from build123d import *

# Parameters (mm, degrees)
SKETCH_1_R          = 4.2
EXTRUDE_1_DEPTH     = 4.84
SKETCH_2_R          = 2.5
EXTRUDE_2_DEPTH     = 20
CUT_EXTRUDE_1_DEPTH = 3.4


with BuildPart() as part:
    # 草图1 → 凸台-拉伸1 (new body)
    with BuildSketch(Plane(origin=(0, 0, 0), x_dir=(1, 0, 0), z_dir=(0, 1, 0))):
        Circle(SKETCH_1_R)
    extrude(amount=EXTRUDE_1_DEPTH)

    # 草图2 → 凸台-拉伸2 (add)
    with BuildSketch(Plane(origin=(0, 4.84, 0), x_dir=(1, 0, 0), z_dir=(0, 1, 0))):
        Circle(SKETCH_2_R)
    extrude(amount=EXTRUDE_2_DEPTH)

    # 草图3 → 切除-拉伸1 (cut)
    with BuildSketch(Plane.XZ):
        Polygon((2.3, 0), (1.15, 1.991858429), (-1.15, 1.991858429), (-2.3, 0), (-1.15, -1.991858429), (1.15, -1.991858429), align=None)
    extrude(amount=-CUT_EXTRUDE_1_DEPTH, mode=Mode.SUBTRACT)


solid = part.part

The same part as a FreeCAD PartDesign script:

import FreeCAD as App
import Part
import Sketcher
from FreeCAD import Vector
Q = App.Units.Quantity

doc = App.newDocument("Part")
params = doc.addObject("Spreadsheet::Sheet", "Params")
for row, (alias, value) in enumerate([
    ("sketch1_diameter", "8.4 mm"),
    ("pad1_length", "4.84 mm"),
    ("sketch2_diameter", "5 mm"),
    ("pad2_length", "20 mm"),
    ("sketch3_width", "2.3 mm"),
    ("sketch3_length", "2.3 mm"),
    ("pocket1_length", "3.4 mm"),
], start=1):
    params.set(f"A{row}", alias)
    params.set(f"B{row}", "=" + value)
    params.setAlias(f"B{row}", alias)

body = doc.addObject("PartDesign::Body", "Body")

# Sketch on XZ plane
sketch1 = body.newObject("Sketcher::SketchObject", "Sketch")
sketch1.AttachmentSupport = (doc.getObject("XZ_Plane"), [""])
sketch1.MapMode = "FlatFace"
sketch1.addGeometry(Part.Circle(Vector(0, 0, 0), Vector(0, 0, 1), 4.2), False)
sketch1.addConstraint(Sketcher.Constraint("Coincident", 0, 3, -1, 1))
sketch1.addConstraint(Sketcher.Constraint("Diameter", 0, 8.4))
sketch1.setExpression("Constraints[1]", "Params.sketch1_diameter")
pad1 = body.newObject("PartDesign::Pad", "Pad")
pad1.Profile = sketch1
pad1.setExpression("Length", "Params.pad1_length")
pad1.Reversed = True

# Sketch on XZ plane
sketch2 = body.newObject("Sketcher::SketchObject", "Sketch001")
sketch2.AttachmentSupport = (doc.getObject("XZ_Plane"), [""])
sketch2.MapMode = "FlatFace"
sketch2.AttachmentOffset = App.Placement(Vector(0, 0, -4.84), App.Rotation())
sketch2.addGeometry(Part.Circle(Vector(0, 0, 0), Vector(0, 0, 1), 2.5), False)
sketch2.addConstraint(Sketcher.Constraint("Coincident", 0, 3, -1, 1))
sketch2.addConstraint(Sketcher.Constraint("Diameter", 0, 5.0))
sketch2.setExpression("Constraints[1]", "Params.sketch2_diameter")
pad2 = body.newObject("PartDesign::Pad", "Pad001")
pad2.Profile = sketch2
pad2.setExpression("Length", "Params.pad2_length")
pad2.Reversed = True

# Sketch on XZ plane
sketch3 = body.newObject("Sketcher::SketchObject", "Sketch002")
sketch3.AttachmentSupport = (doc.getObject("XZ_Plane"), [""])
sketch3.MapMode = "FlatFace"
sketch3.addGeometry(Part.LineSegment(Vector(2.3, 0, 0), Vector(1.1, 2, 0)), False)
sketch3.addGeometry(Part.LineSegment(Vector(1.1, 2, 0), Vector(-1.1, 2, 0)), False)
sketch3.addGeometry(Part.LineSegment(Vector(-1.1, 2, 0), Vector(-2.3, 0, 0)), False)
sketch3.addGeometry(Part.LineSegment(Vector(-2.3, 0, 0), Vector(-1.1, -2, 0)), False)
sketch3.addGeometry(Part.LineSegment(Vector(-1.1, -2, 0), Vector(1.1, -2, 0)), False)
sketch3.addGeometry(Part.LineSegment(Vector(1.1, -2, 0), Vector(2.3, 0, 0)), False)
sketch3.addConstraint(Sketcher.Constraint("Coincident", 0, 2, 1, 1))
sketch3.addConstraint(Sketcher.Constraint("Coincident", 1, 2, 2, 1))
sketch3.addConstraint(Sketcher.Constraint("Coincident", 2, 2, 3, 1))
sketch3.addConstraint(Sketcher.Constraint("Coincident", 3, 2, 4, 1))
sketch3.addConstraint(Sketcher.Constraint("Coincident", 4, 2, 5, 1))
sketch3.addConstraint(Sketcher.Constraint("Coincident", 5, 2, 0, 1))
sketch3.addConstraint(Sketcher.Constraint("Horizontal", 1))
sketch3.addConstraint(Sketcher.Constraint("Horizontal", 4))
sketch3.addConstraint(Sketcher.Constraint("Symmetric", 0, 2, 3, 2, -1, 1))
sketch3.addConstraint(Sketcher.Constraint("Symmetric", 2, 2, 5, 2, -1, 1))
sketch3.addConstraint(Sketcher.Constraint("PointOnObject", 2, 2, -1))
sketch3.addConstraint(Sketcher.Constraint("Parallel", 2, 5))
sketch3.addConstraint(Sketcher.Constraint("Vertical", 1, 2, 3, 2))
sketch3.addConstraint(Sketcher.Constraint("Angle", 0, Q("120 deg")))
sketch3.addConstraint(Sketcher.Constraint("DistanceX", 1, 2, 1, 1, 2.3))
sketch3.addConstraint(Sketcher.Constraint("Distance", 0, 2.3))
sketch3.setExpression("Constraints[14]", "Params.sketch3_width")
sketch3.setExpression("Constraints[15]", "Params.sketch3_length")
pocket1 = body.newObject("PartDesign::Pocket", "Pocket")
pocket1.Profile = sketch3
pocket1.setExpression("Length", "Params.pocket1_length")

doc.recompute()
